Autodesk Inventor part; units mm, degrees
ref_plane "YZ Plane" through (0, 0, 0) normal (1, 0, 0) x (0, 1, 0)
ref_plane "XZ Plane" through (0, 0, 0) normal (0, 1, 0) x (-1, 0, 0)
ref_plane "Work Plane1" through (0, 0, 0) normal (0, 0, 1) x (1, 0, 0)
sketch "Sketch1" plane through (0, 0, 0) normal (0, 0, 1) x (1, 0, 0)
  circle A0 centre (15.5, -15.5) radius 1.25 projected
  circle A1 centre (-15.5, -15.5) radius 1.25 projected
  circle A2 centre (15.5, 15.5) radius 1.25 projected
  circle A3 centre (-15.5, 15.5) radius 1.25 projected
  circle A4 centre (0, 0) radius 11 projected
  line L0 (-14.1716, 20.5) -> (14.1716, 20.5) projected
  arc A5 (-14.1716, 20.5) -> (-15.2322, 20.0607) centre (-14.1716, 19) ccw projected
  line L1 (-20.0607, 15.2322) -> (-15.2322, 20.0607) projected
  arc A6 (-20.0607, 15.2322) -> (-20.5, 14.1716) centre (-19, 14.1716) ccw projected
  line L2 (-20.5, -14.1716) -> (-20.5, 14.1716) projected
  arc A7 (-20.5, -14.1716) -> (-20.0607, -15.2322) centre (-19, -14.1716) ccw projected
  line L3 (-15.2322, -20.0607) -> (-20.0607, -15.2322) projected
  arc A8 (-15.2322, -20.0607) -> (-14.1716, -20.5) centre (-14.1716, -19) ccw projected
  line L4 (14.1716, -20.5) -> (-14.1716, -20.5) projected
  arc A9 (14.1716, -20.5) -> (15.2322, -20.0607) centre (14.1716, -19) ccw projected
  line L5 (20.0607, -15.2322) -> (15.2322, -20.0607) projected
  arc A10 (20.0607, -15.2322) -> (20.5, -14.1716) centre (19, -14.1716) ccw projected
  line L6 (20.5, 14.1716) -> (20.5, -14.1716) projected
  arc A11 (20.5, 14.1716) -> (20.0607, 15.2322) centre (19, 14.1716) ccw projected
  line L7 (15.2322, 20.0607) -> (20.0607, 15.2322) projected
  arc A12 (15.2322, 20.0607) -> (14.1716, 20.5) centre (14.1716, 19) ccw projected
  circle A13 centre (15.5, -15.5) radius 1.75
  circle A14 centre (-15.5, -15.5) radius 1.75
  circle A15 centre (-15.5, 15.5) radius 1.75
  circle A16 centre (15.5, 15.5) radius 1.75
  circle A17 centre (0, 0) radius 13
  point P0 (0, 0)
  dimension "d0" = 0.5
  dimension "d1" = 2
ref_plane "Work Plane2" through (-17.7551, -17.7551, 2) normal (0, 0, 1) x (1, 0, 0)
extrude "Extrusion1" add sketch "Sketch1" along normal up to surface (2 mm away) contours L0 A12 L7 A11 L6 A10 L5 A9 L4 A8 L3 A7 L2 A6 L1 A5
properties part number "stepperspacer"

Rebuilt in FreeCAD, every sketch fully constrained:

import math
import FreeCAD as App
import Part
import Sketcher
Q = App.Units.Quantity

doc = App.newDocument("Part")
body = doc.addObject("PartDesign::Body", "Body")

sketch1 = body.newObject("Sketcher::SketchObject", "Sketch")
sketch1.AttachmentSupport = (doc.getObject("XY_Plane"), [""])
sketch1.MapMode = "FlatFace"
sketch1.addGeometry(Part.LineSegment(App.Vector(14.2, 20.5, 0), App.Vector(-14.2, 20.5, 0)), False)
sketch1.addGeometry(Part.ArcOfCircle(Part.Circle(App.Vector(-14.2, 19, 0), App.Vector(0, 0, 1), 1.5), math.radians(90), math.radians(135)), False)
sketch1.addGeometry(Part.LineSegment(App.Vector(-15.2, 20.1, 0), App.Vector(-20.1, 15.2, 0)), False)
sketch1.addGeometry(Part.ArcOfCircle(Part.Circle(App.Vector(-19, 14.2, 0), App.Vector(0, 0, 1), 1.5), math.radians(135), math.radians(180)), False)
sketch1.addGeometry(Part.LineSegment(App.Vector(-20.5, 14.2, 0), App.Vector(-20.5, -14.2, 0)), False)
sketch1.addGeometry(Part.ArcOfCircle(Part.Circle(App.Vector(-19, -14.2, 0), App.Vector(0, 0, 1), 1.5), math.radians(180), math.radians(225)), False)
sketch1.addGeometry(Part.LineSegment(App.Vector(-20.1, -15.2, 0), App.Vector(-15.2, -20.1, 0)), False)
sketch1.addGeometry(Part.ArcOfCircle(Part.Circle(App.Vector(-14.2, -19, 0), App.Vector(0, 0, 1), 1.5), math.radians(-135), math.radians(-90)), False)
sketch1.addGeometry(Part.LineSegment(App.Vector(-14.2, -20.5, 0), App.Vector(14.2, -20.5, 0)), False)
sketch1.addGeometry(Part.ArcOfCircle(Part.Circle(App.Vector(14.2, -19, 0), App.Vector(0, 0, 1), 1.5), math.radians(-90), math.radians(-45)), False)
sketch1.addGeometry(Part.LineSegment(App.Vector(15.2, -20.1, 0), App.Vector(20.1, -15.2, 0)), False)
sketch1.addGeometry(Part.ArcOfCircle(Part.Circle(App.Vector(19, -14.2, 0), App.Vector(0, 0, 1), 1.5), math.radians(-45), math.radians(0)), False)
sketch1.addGeometry(Part.LineSegment(App.Vector(20.5, -14.2, 0), App.Vector(20.5, 14.2, 0)), False)
sketch1.addGeometry(Part.ArcOfCircle(Part.Circle(App.Vector(19, 14.2, 0), App.Vector(0, 0, 1), 1.5), math.radians(0), math.radians(45)), False)
sketch1.addGeometry(Part.LineSegment(App.Vector(20.1, 15.2, 0), App.Vector(15.2, 20.1, 0)), False)
sketch1.addGeometry(Part.ArcOfCircle(Part.Circle(App.Vector(14.2, 19, 0), App.Vector(0, 0, 1), 1.5), math.radians(45), math.radians(90)), False)
sketch1.addGeometry(Part.Circle(App.Vector(-15.5, -15.5, 0), App.Vector(0, 0, 1), 1.8), False)
sketch1.addGeometry(Part.Circle(App.Vector(15.5, -15.5, 0), App.Vector(0, 0, 1), 1.8), False)
sketch1.addGeometry(Part.Circle(App.Vector(-15.5, 15.5, 0), App.Vector(0, 0, 1), 1.8), False)
sketch1.addGeometry(Part.Circle(App.Vector(0, 0, 0), App.Vector(0, 0, 1), 13), False)
sketch1.addGeometry(Part.Circle(App.Vector(15.5, 15.5, 0), App.Vector(0, 0, 1), 1.8), False)
sketch1.addConstraint(Sketcher.Constraint("Tangent", 0, 2, 1, 1))
sketch1.addConstraint(Sketcher.Constraint("Tangent", 1, 2, 2, 1))
sketch1.addConstraint(Sketcher.Constraint("Tangent", 2, 2, 3, 1))
sketch1.addConstraint(Sketcher.Constraint("Tangent", 3, 2, 4, 1))
sketch1.addConstraint(Sketcher.Constraint("Tangent", 4, 2, 5, 1))
sketch1.addConstraint(Sketcher.Constraint("Tangent", 5, 2, 6, 1))
sketch1.addConstraint(Sketcher.Constraint("Tangent", 6, 2, 7, 1))
sketch1.addConstraint(Sketcher.Constraint("Tangent", 7, 2, 8, 1))
sketch1.addConstraint(Sketcher.Constraint("Tangent", 8, 2, 9, 1))
sketch1.addConstraint(Sketcher.Constraint("Tangent", 9, 2, 10, 1))
sketch1.addConstraint(Sketcher.Constraint("Tangent", 10, 2, 11, 1))
sketch1.addConstraint(Sketcher.Constraint("Tangent", 11, 2, 12, 1))
sketch1.addConstraint(Sketcher.Constraint("Tangent", 12, 2, 13, 1))
sketch1.addConstraint(Sketcher.Constraint("Tangent", 13, 2, 14, 1))
sketch1.addConstraint(Sketcher.Constraint("Tangent", 14, 2, 15, 1))
sketch1.addConstraint(Sketcher.Constraint("Tangent", 15, 2, 0, 1))
sketch1.addConstraint(Sketcher.Constraint("Horizontal", 0))
sketch1.addConstraint(Sketcher.Constraint("Vertical", 4))
sketch1.addConstraint(Sketcher.Constraint("Horizontal", 8))
sketch1.addConstraint(Sketcher.Constraint("Vertical", 12))
sketch1.addConstraint(Sketcher.Constraint("Coincident", 19, 3, -1, 1))
sketch1.addConstraint(Sketcher.Constraint("Equal", 1, 3))
sketch1.addConstraint(Sketcher.Constraint("Equal", 3, 5))
sketch1.addConstraint(Sketcher.Constraint("Equal", 5, 7))
sketch1.addConstraint(Sketcher.Constraint("Equal", 7, 9))
sketch1.addConstraint(Sketcher.Constraint("Equal", 9, 11))
sketch1.addConstraint(Sketcher.Constraint("Equal", 11, 13))
sketch1.addConstraint(Sketcher.Constraint("Equal", 13, 15))
sketch1.addConstraint(Sketcher.Constraint("Equal", 16, 17))
sketch1.addConstraint(Sketcher.Constraint("Equal", 17, 18))
sketch1.addConstraint(Sketcher.Constraint("Equal", 18, 20))
sketch1.addConstraint(Sketcher.Constraint("Symmetric", 1, 3, 9, 3, -1, 1))
sketch1.addConstraint(Sketcher.Constraint("Symmetric", 3, 3, 11, 3, -1, 1))
sketch1.addConstraint(Sketcher.Constraint("Symmetric", 17, 3, 18, 3, -1, 1))
sketch1.addConstraint(Sketcher.Constraint("Symmetric", 16, 3, 20, 3, -1, 1))
sketch1.addConstraint(Sketcher.Constraint("Symmetric", 5, 2, 13, 2, -1, 1))
sketch1.addConstraint(Sketcher.Constraint("Symmetric", 16, 3, 17, 3, -2))
sketch1.addConstraint(Sketcher.Constraint("Symmetric", 6, 2, 9, 2, -2))
sketch1.addConstraint(Sketcher.Constraint("Perpendicular", 2, 6))
sketch1.addConstraint(Sketcher.Constraint("Equal", 8, 4))
sketch1.addConstraint(Sketcher.Constraint("Diameter", 19, Q("26 mm")))
sketch1.addConstraint(Sketcher.Constraint("Diameter", 16, Q("3.5 mm")))
sketch1.addConstraint(Sketcher.Constraint("Radius", 1, Q("1.5 mm")))
sketch1.addConstraint(Sketcher.Constraint("DistanceY", -1, 1, 1, 3, Q("19 mm")))
sketch1.addConstraint(Sketcher.Constraint("DistanceX", 16, 3, 17, 3, Q("31 mm")))
sketch1.addConstraint(Sketcher.Constraint("DistanceY", 16, 3, 18, 3, Q("31 mm")))
sketch1.addConstraint(Sketcher.Constraint("DistanceX", 0, 2, 0, 1, Q("28.3432 mm")))
pad1 = body.newObject("PartDesign::Pad", "Pad")
pad1.Profile = sketch1
pad1.Length = 2

doc.recompute()
